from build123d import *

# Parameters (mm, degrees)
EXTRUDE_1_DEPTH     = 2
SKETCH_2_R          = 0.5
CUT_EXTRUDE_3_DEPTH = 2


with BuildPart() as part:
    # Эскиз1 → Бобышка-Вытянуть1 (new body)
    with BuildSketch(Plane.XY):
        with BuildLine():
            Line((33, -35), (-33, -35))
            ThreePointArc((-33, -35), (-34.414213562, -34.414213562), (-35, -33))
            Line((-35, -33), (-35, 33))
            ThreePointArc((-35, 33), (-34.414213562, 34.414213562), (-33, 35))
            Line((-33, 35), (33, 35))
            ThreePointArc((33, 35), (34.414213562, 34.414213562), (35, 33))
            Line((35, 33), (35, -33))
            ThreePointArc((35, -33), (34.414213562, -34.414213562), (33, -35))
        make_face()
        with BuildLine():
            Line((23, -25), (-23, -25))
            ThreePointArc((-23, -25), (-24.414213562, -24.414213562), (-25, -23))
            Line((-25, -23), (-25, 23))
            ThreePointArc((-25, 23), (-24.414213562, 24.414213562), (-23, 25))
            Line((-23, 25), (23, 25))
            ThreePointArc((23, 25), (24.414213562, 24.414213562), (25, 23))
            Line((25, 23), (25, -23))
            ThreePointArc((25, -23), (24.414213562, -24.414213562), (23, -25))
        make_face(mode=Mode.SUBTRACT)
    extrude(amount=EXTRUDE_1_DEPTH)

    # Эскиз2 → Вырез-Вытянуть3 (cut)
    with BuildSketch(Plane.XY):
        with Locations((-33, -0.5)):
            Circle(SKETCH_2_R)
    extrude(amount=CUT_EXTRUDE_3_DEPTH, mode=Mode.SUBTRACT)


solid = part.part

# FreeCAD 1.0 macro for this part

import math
import FreeCAD as App
import Part
import Sketcher
from FreeCAD import Vector
Q = App.Units.Quantity

doc = App.newDocument("Part")
params = doc.addObject("Spreadsheet::Sheet", "Params")
for row, (alias, value) in enumerate([
    ("sketch1_radius", "2 mm"),
    ("sketch1_width", "66 mm"),
    ("sketch1_width2", "46 mm"),
    ("pad1_length", "2 mm"),
    ("sketch2_diameter", "1 mm"),
    ("pocket1_length", "2 mm"),
], start=1):
    params.set(f"A{row}", alias)
    params.set(f"B{row}", "=" + value)
    params.setAlias(f"B{row}", alias)

body = doc.addObject("PartDesign::Body", "Body")

# Sketch on XY plane
sketch1 = body.newObject("Sketcher::SketchObject", "Sketch")
sketch1.AttachmentSupport = (doc.getObject("XY_Plane"), [""])
sketch1.MapMode = "FlatFace"
sketch1.addGeometry([
    Part.LineSegment(Vector(-33, -35, 0), Vector(33, -35, 0)),  # 0
    Part.ArcOfCircle(Part.Circle(Vector(33, -33, 0), Vector(0, 0, 1), 2), math.radians(-90), math.radians(0)),  # 1
    Part.LineSegment(Vector(35, -33, 0), Vector(35, 33, 0)),  # 2
    Part.ArcOfCircle(Part.Circle(Vector(33, 33, 0), Vector(0, 0, 1), 2), math.radians(0), math.radians(90)),  # 3
    Part.LineSegment(Vector(33, 35, 0), Vector(-33, 35, 0)),  # 4
    Part.ArcOfCircle(Part.Circle(Vector(-33, 33, 0), Vector(0, 0, 1), 2), math.radians(90), math.radians(180)),  # 5
    Part.LineSegment(Vector(-35, 33, 0), Vector(-35, -33, 0)),  # 6
    Part.ArcOfCircle(Part.Circle(Vector(-33, -33, 0), Vector(0, 0, 1), 2), math.radians(-180), math.radians(-90)),  # 7
    Part.LineSegment(Vector(23, -25, 0), Vector(-23, -25, 0)),  # 8
    Part.ArcOfCircle(Part.Circle(Vector(-23, -23, 0), Vector(0, 0, 1), 2), math.radians(-180), math.radians(-90)),  # 9
    Part.LineSegment(Vector(-25, -23, 0), Vector(-25, 23, 0)),  # 10
    Part.ArcOfCircle(Part.Circle(Vector(-23, 23, 0), Vector(0, 0, 1), 2), math.radians(90), math.radians(180)),  # 11
    Part.LineSegment(Vector(-23, 25, 0), Vector(23, 25, 0)),  # 12
    Part.ArcOfCircle(Part.Circle(Vector(23, 23, 0), Vector(0, 0, 1), 2), math.radians(0), math.radians(90)),  # 13
    Part.LineSegment(Vector(25, 23, 0), Vector(25, -23, 0)),  # 14
    Part.ArcOfCircle(Part.Circle(Vector(23, -23, 0), Vector(0, 0, 1), 2), math.radians(-90), math.radians(0)),  # 15
], False)
sketch1.addConstraint([
    Sketcher.Constraint("Tangent", 0, 2, 1, 1),
    Sketcher.Constraint("Tangent", 1, 2, 2, 1),
    Sketcher.Constraint("Tangent", 2, 2, 3, 1),
    Sketcher.Constraint("Tangent", 3, 2, 4, 1),
    Sketcher.Constraint("Tangent", 4, 2, 5, 1),
    Sketcher.Constraint("Tangent", 5, 2, 6, 1),
    Sketcher.Constraint("Tangent", 6, 2, 7, 1),
    Sketcher.Constraint("Tangent", 7, 2, 0, 1),
    Sketcher.Constraint("Tangent", 8, 2, 9, 2),
    Sketcher.Constraint("Tangent", 9, 1, 10, 1),
    Sketcher.Constraint("Tangent", 10, 2, 11, 2),
    Sketcher.Constraint("Tangent", 11, 1, 12, 1),
    Sketcher.Constraint("Tangent", 12, 2, 13, 2),
    Sketcher.Constraint("Tangent", 13, 1, 14, 1),
    Sketcher.Constraint("Tangent", 14, 2, 15, 2),
    Sketcher.Constraint("Tangent", 15, 1, 8, 1),
    Sketcher.Constraint("Horizontal", 0),
    Sketcher.Constraint("Vertical", 2),
    Sketcher.Constraint("Horizontal", 4),
    Sketcher.Constraint("Vertical", 6),
    Sketcher.Constraint("Horizontal", 8),
    Sketcher.Constraint("Vertical", 10),
    Sketcher.Constraint("Horizontal", 12),
    Sketcher.Constraint("Vertical", 14),
    Sketcher.Constraint("Equal", 1, 3),
    Sketcher.Constraint("Equal", 3, 5),
    Sketcher.Constraint("Equal", 5, 7),
    Sketcher.Constraint("Equal", 7, 9),
    Sketcher.Constraint("Equal", 9, 11),
    Sketcher.Constraint("Equal", 11, 13),
    Sketcher.Constraint("Equal", 13, 15),
    Sketcher.Constraint("Symmetric", 1, 3, 5, 3, -1, 1),
    Sketcher.Constraint("Symmetric", 9, 3, 13, 3, -1, 1),
    Sketcher.Constraint("Equal", 4, 2),
    Sketcher.Constraint("Equal", 12, 10),
    Sketcher.Constraint("Radius", 1, Q("2 mm")),
    Sketcher.Constraint("DistanceX", 0, 1, 0, 2, Q("66 mm")),
    Sketcher.Constraint("DistanceX", 8, 2, 8, 1, Q("46 mm")),
])
sketch1.setExpression("Constraints[35]", "Params.sketch1_radius")
sketch1.setExpression("Constraints[36]", "Params.sketch1_width")
sketch1.setExpression("Constraints[37]", "Params.sketch1_width2")
pad1 = body.newObject("PartDesign::Pad", "Pad")
pad1.Profile = sketch1
pad1.setExpression("Length", "Params.pad1_length")

# Sketch on XY plane
sketch2 = body.newObject("Sketcher::SketchObject", "Sketch001")
sketch2.AttachmentSupport = (doc.getObject("XY_Plane"), [""])
sketch2.MapMode = "FlatFace"
sketch2.addGeometry(Part.Circle(Vector(-33, -0.5, 0), Vector(0, 0, 1), 0.5), False)
sketch2.addConstraint([
    Sketcher.Constraint("Diameter", 0, Q("1 mm")),
    Sketcher.Constraint("DistanceX", 0, 3, -1, 1, Q("33 mm")),
    Sketcher.Constraint("DistanceY", 0, 3, -1, 1, Q("0.5 mm")),
])
sketch2.setExpression("Constraints[0]", "Params.sketch2_diameter")
pocket1 = body.newObject("PartDesign::Pocket", "Pocket")
pocket1.Profile = sketch2
pocket1.setExpression("Length", "Params.pocket1_length")
pocket1.Reversed = True

doc.recompute()
